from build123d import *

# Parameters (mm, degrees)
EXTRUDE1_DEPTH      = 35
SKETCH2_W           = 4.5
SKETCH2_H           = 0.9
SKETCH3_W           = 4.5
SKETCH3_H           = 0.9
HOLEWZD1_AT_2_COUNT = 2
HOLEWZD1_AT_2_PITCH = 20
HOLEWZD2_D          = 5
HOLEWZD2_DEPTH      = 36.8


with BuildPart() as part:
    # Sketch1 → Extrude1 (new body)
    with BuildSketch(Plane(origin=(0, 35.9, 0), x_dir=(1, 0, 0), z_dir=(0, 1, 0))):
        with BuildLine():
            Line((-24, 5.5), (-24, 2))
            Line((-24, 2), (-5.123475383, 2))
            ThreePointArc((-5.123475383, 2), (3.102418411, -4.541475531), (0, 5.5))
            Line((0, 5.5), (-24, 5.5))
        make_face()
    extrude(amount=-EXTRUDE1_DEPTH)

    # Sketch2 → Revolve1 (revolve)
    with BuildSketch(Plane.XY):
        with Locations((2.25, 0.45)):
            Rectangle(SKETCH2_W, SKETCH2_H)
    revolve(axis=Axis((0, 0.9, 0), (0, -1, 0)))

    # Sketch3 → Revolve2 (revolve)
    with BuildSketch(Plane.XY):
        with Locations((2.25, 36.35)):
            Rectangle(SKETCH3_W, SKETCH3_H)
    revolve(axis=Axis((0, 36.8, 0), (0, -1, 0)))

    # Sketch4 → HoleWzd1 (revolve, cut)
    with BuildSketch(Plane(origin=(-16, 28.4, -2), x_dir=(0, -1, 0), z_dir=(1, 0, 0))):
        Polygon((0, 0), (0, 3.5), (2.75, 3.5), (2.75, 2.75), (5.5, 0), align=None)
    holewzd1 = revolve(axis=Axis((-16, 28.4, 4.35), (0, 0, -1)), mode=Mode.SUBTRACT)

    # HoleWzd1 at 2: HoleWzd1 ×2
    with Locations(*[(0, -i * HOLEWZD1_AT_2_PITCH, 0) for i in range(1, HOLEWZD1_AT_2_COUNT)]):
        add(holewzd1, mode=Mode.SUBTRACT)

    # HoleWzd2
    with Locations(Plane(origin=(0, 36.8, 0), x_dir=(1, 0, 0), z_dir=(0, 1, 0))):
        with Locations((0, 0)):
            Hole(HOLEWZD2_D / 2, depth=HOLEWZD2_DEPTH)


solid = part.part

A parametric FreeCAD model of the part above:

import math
import FreeCAD as App
import Part
import Sketcher
Q = App.Units.Quantity


def add_polygon(sketch, points):
    """Adds a closed chain of lines whose ends are joined by coincident constraints."""
    first, n = sketch.GeometryCount, len(points)
    for a, b in zip(points, points[1:] + points[:1]):
        sketch.addGeometry(Part.LineSegment(App.Vector(*a, 0), App.Vector(*b, 0)), False)
    for i in range(n):
        sketch.addConstraint(Sketcher.Constraint("Coincident", first + i, 2, first + (i + 1) % n, 1))

doc = App.newDocument("Part")
body = doc.addObject("PartDesign::Body", "Body")

sketch1 = body.newObject("Sketcher::SketchObject", "Sketch")
sketch1.AttachmentSupport = (doc.getObject("XZ_Plane"), [""])
sketch1.MapMode = "FlatFace"
sketch1.AttachmentOffset = App.Placement(App.Vector(0, 0, -35.9), App.Rotation())
sketch1.addGeometry(Part.LineSegment(App.Vector(-24, -5.5, 0), App.Vector(-24, -2, 0)), False)
sketch1.addGeometry(Part.LineSegment(App.Vector(-24, -2, 0), App.Vector(-5.1, -2, 0)), False)
sketch1.addGeometry(Part.ArcOfCircle(Part.Circle(App.Vector(0, 0, 0), App.Vector(0, 0, 1), 5.5), math.radians(-90), math.radians(201)), False)
sketch1.addGeometry(Part.LineSegment(App.Vector(0, -5.5, 0), App.Vector(-24, -5.5, 0)), False)
sketch1.addConstraint(Sketcher.Constraint("Coincident", 0, 2, 1, 1))
sketch1.addConstraint(Sketcher.Constraint("Coincident", 1, 2, 2, 2))
sketch1.addConstraint(Sketcher.Constraint("Tangent", 2, 1, 3, 1))
sketch1.addConstraint(Sketcher.Constraint("Coincident", 3, 2, 0, 1))
sketch1.addConstraint(Sketcher.Constraint("Vertical", 0))
sketch1.addConstraint(Sketcher.Constraint("Horizontal", 1))
sketch1.addConstraint(Sketcher.Constraint("Horizontal", 3))
sketch1.addConstraint(Sketcher.Constraint("Coincident", 2, 3, -1, 1))
sketch1.addConstraint(Sketcher.Constraint("Radius", 2, Q("5.5 mm")))
sketch1.addConstraint(Sketcher.Constraint("DistanceX", 3, 2, 3, 1, Q("24 mm")))
sketch1.addConstraint(Sketcher.Constraint("DistanceY", 0, 1, 0, 2, Q("3.5 mm")))
pad1 = body.newObject("PartDesign::Pad", "Pad")
pad1.Profile = sketch1
pad1.Length = 35

sketch2 = body.newObject("Sketcher::SketchObject", "Sketch001")
sketch2.AttachmentSupport = (doc.getObject("XY_Plane"), [""])
sketch2.MapMode = "FlatFace"
add_polygon(sketch2, [(0, 0.9), (0, 0), (4.5, 0), (4.5, 0.9)])
sketch2.addConstraint(Sketcher.Constraint("Vertical", 0))
sketch2.addConstraint(Sketcher.Constraint("Horizontal", 1))
sketch2.addConstraint(Sketcher.Constraint("Vertical", 2))
sketch2.addConstraint(Sketcher.Constraint("Horizontal", 3))
sketch2.addConstraint(Sketcher.Constraint("Coincident", 0, 2, -1, 1))
sketch2.addConstraint(Sketcher.Constraint("DistanceX", 1, 1, 1, 2, Q("4.5 mm")))
sketch2.addConstraint(Sketcher.Constraint("DistanceY", 0, 2, 0, 1, Q("0.9 mm")))
revolution = body.newObject("PartDesign::Revolution", "Revolution")
revolution.Profile = sketch2
revolution.ReferenceAxis = (sketch2, ["V_Axis"])
revolution.Angle = 360

sketch3 = body.newObject("Sketcher::SketchObject", "Sketch002")
sketch3.AttachmentSupport = (doc.getObject("XY_Plane"), [""])
sketch3.MapMode = "FlatFace"
add_polygon(sketch3, [(0, 36.8), (0, 35.9), (4.5, 35.9), (4.5, 36.8)])
sketch3.addConstraint(Sketcher.Constraint("Vertical", 0))
sketch3.addConstraint(Sketcher.Constraint("Horizontal", 1))
sketch3.addConstraint(Sketcher.Constraint("Vertical", 2))
sketch3.addConstraint(Sketcher.Constraint("Horizontal", 3))
sketch3.addConstraint(Sketcher.Constraint("PointOnObject", 0, 2, -2))
sketch3.addConstraint(Sketcher.Constraint("DistanceX", 1, 1, 1, 2, Q("4.5 mm")))
sketch3.addConstraint(Sketcher.Constraint("DistanceY", 0, 2, 0, 1, Q("0.9 mm")))
sketch3.addConstraint(Sketcher.Constraint("DistanceY", -1, 1, 0, 2, Q("35.9 mm")))
revolution2 = body.newObject("PartDesign::Revolution", "Revolution001")
revolution2.Profile = sketch3
revolution2.ReferenceAxis = (sketch3, ["V_Axis"])
revolution2.Angle = 360

sketch4 = body.newObject("Sketcher::SketchObject", "Sketch003")
sketch4.AttachmentSupport = (doc.getObject("YZ_Plane"), [""])
sketch4.MapMode = "FlatFace"
sketch4.AttachmentOffset = App.Placement(App.Vector(0, 0, -16), App.Rotation())
add_polygon(sketch4, [(28.4, -5.5), (28.4, -2), (22.9, -2), (25.6, -4.8), (25.6, -5.5)])
sketch4.addGeometry(Part.LineSegment(App.Vector(28.4, -2, 0), App.Vector(28.4, -5.5, 0)), True)
sketch4.addConstraint(Sketcher.Constraint("Vertical", 0))
sketch4.addConstraint(Sketcher.Constraint("Horizontal", 1))
sketch4.addConstraint(Sketcher.Constraint("Vertical", 3))
sketch4.addConstraint(Sketcher.Constraint("Horizontal", 4))
sketch4.addConstraint(Sketcher.Constraint("Vertical", 5))
sketch4.addConstraint(Sketcher.Constraint("Coincident", 5, 1, 0, 2))
sketch4.addConstraint(Sketcher.Constraint("Horizontal", 3, 2, 5, 2))
sketch4.addConstraint(Sketcher.Constraint("Angle", 2, Q("-45 deg")))
sketch4.addConstraint(Sketcher.Constraint("DistanceX", 1, 2, 1, 1, Q("5.5 mm")))
sketch4.addConstraint(Sketcher.Constraint("DistanceY", 0, 1, 0, 2, Q("3.5 mm")))
sketch4.addConstraint(Sketcher.Constraint("DistanceY", 0, 2, -1, 1, Q("2 mm")))
sketch4.addConstraint(Sketcher.Constraint("DistanceX", 4, 1, 4, 2, Q("2.75 mm")))
sketch4.addConstraint(Sketcher.Constraint("DistanceX", -1, 1, 0, 2, Q("28.4 mm")))
groove = body.newObject("PartDesign::Groove", "Groove")
groove.Profile = sketch4
groove.ReferenceAxis = (sketch4, ["Axis0"])
groove.Angle = 360
doc.recompute()

linearpattern = body.newObject("PartDesign::LinearPattern", "LinearPattern")
linearpattern.Originals = [groove]
linearpattern.Direction = (doc.getObject("Y_Axis"), [""])
linearpattern.Mode = "offset"
linearpattern.Offset = 20
linearpattern.Occurrences = 2
linearpattern.Reversed = True
body.Tip = linearpattern

sketch5 = body.newObject("Sketcher::SketchObject", "Sketch004")
sketch5.AttachmentSupport = (doc.getObject("XZ_Plane"), [""])
sketch5.MapMode = "FlatFace"
sketch5.AttachmentOffset = App.Placement(App.Vector(0, 0, -36.8), App.Rotation())
sketch5.addGeometry(Part.Circle(App.Vector(0, 0, 0), App.Vector(0, 0, 1), 2.5), False)
sketch5.addConstraint(Sketcher.Constraint("Coincident", 0, 3, -1, 1))
sketch5.addConstraint(Sketcher.Constraint("Diameter", 0, Q("5 mm")))
doc.recompute()
hole = body.newObject("PartDesign::Hole", "Hole")
hole.Profile = sketch5
hole.ThreadType = "None"
hole.Diameter = 5
hole.DepthType = "Dimension"
hole.Depth = 36.8
hole.DrillPoint = "Flat"
hole.Reversed = True

doc.recompute()
